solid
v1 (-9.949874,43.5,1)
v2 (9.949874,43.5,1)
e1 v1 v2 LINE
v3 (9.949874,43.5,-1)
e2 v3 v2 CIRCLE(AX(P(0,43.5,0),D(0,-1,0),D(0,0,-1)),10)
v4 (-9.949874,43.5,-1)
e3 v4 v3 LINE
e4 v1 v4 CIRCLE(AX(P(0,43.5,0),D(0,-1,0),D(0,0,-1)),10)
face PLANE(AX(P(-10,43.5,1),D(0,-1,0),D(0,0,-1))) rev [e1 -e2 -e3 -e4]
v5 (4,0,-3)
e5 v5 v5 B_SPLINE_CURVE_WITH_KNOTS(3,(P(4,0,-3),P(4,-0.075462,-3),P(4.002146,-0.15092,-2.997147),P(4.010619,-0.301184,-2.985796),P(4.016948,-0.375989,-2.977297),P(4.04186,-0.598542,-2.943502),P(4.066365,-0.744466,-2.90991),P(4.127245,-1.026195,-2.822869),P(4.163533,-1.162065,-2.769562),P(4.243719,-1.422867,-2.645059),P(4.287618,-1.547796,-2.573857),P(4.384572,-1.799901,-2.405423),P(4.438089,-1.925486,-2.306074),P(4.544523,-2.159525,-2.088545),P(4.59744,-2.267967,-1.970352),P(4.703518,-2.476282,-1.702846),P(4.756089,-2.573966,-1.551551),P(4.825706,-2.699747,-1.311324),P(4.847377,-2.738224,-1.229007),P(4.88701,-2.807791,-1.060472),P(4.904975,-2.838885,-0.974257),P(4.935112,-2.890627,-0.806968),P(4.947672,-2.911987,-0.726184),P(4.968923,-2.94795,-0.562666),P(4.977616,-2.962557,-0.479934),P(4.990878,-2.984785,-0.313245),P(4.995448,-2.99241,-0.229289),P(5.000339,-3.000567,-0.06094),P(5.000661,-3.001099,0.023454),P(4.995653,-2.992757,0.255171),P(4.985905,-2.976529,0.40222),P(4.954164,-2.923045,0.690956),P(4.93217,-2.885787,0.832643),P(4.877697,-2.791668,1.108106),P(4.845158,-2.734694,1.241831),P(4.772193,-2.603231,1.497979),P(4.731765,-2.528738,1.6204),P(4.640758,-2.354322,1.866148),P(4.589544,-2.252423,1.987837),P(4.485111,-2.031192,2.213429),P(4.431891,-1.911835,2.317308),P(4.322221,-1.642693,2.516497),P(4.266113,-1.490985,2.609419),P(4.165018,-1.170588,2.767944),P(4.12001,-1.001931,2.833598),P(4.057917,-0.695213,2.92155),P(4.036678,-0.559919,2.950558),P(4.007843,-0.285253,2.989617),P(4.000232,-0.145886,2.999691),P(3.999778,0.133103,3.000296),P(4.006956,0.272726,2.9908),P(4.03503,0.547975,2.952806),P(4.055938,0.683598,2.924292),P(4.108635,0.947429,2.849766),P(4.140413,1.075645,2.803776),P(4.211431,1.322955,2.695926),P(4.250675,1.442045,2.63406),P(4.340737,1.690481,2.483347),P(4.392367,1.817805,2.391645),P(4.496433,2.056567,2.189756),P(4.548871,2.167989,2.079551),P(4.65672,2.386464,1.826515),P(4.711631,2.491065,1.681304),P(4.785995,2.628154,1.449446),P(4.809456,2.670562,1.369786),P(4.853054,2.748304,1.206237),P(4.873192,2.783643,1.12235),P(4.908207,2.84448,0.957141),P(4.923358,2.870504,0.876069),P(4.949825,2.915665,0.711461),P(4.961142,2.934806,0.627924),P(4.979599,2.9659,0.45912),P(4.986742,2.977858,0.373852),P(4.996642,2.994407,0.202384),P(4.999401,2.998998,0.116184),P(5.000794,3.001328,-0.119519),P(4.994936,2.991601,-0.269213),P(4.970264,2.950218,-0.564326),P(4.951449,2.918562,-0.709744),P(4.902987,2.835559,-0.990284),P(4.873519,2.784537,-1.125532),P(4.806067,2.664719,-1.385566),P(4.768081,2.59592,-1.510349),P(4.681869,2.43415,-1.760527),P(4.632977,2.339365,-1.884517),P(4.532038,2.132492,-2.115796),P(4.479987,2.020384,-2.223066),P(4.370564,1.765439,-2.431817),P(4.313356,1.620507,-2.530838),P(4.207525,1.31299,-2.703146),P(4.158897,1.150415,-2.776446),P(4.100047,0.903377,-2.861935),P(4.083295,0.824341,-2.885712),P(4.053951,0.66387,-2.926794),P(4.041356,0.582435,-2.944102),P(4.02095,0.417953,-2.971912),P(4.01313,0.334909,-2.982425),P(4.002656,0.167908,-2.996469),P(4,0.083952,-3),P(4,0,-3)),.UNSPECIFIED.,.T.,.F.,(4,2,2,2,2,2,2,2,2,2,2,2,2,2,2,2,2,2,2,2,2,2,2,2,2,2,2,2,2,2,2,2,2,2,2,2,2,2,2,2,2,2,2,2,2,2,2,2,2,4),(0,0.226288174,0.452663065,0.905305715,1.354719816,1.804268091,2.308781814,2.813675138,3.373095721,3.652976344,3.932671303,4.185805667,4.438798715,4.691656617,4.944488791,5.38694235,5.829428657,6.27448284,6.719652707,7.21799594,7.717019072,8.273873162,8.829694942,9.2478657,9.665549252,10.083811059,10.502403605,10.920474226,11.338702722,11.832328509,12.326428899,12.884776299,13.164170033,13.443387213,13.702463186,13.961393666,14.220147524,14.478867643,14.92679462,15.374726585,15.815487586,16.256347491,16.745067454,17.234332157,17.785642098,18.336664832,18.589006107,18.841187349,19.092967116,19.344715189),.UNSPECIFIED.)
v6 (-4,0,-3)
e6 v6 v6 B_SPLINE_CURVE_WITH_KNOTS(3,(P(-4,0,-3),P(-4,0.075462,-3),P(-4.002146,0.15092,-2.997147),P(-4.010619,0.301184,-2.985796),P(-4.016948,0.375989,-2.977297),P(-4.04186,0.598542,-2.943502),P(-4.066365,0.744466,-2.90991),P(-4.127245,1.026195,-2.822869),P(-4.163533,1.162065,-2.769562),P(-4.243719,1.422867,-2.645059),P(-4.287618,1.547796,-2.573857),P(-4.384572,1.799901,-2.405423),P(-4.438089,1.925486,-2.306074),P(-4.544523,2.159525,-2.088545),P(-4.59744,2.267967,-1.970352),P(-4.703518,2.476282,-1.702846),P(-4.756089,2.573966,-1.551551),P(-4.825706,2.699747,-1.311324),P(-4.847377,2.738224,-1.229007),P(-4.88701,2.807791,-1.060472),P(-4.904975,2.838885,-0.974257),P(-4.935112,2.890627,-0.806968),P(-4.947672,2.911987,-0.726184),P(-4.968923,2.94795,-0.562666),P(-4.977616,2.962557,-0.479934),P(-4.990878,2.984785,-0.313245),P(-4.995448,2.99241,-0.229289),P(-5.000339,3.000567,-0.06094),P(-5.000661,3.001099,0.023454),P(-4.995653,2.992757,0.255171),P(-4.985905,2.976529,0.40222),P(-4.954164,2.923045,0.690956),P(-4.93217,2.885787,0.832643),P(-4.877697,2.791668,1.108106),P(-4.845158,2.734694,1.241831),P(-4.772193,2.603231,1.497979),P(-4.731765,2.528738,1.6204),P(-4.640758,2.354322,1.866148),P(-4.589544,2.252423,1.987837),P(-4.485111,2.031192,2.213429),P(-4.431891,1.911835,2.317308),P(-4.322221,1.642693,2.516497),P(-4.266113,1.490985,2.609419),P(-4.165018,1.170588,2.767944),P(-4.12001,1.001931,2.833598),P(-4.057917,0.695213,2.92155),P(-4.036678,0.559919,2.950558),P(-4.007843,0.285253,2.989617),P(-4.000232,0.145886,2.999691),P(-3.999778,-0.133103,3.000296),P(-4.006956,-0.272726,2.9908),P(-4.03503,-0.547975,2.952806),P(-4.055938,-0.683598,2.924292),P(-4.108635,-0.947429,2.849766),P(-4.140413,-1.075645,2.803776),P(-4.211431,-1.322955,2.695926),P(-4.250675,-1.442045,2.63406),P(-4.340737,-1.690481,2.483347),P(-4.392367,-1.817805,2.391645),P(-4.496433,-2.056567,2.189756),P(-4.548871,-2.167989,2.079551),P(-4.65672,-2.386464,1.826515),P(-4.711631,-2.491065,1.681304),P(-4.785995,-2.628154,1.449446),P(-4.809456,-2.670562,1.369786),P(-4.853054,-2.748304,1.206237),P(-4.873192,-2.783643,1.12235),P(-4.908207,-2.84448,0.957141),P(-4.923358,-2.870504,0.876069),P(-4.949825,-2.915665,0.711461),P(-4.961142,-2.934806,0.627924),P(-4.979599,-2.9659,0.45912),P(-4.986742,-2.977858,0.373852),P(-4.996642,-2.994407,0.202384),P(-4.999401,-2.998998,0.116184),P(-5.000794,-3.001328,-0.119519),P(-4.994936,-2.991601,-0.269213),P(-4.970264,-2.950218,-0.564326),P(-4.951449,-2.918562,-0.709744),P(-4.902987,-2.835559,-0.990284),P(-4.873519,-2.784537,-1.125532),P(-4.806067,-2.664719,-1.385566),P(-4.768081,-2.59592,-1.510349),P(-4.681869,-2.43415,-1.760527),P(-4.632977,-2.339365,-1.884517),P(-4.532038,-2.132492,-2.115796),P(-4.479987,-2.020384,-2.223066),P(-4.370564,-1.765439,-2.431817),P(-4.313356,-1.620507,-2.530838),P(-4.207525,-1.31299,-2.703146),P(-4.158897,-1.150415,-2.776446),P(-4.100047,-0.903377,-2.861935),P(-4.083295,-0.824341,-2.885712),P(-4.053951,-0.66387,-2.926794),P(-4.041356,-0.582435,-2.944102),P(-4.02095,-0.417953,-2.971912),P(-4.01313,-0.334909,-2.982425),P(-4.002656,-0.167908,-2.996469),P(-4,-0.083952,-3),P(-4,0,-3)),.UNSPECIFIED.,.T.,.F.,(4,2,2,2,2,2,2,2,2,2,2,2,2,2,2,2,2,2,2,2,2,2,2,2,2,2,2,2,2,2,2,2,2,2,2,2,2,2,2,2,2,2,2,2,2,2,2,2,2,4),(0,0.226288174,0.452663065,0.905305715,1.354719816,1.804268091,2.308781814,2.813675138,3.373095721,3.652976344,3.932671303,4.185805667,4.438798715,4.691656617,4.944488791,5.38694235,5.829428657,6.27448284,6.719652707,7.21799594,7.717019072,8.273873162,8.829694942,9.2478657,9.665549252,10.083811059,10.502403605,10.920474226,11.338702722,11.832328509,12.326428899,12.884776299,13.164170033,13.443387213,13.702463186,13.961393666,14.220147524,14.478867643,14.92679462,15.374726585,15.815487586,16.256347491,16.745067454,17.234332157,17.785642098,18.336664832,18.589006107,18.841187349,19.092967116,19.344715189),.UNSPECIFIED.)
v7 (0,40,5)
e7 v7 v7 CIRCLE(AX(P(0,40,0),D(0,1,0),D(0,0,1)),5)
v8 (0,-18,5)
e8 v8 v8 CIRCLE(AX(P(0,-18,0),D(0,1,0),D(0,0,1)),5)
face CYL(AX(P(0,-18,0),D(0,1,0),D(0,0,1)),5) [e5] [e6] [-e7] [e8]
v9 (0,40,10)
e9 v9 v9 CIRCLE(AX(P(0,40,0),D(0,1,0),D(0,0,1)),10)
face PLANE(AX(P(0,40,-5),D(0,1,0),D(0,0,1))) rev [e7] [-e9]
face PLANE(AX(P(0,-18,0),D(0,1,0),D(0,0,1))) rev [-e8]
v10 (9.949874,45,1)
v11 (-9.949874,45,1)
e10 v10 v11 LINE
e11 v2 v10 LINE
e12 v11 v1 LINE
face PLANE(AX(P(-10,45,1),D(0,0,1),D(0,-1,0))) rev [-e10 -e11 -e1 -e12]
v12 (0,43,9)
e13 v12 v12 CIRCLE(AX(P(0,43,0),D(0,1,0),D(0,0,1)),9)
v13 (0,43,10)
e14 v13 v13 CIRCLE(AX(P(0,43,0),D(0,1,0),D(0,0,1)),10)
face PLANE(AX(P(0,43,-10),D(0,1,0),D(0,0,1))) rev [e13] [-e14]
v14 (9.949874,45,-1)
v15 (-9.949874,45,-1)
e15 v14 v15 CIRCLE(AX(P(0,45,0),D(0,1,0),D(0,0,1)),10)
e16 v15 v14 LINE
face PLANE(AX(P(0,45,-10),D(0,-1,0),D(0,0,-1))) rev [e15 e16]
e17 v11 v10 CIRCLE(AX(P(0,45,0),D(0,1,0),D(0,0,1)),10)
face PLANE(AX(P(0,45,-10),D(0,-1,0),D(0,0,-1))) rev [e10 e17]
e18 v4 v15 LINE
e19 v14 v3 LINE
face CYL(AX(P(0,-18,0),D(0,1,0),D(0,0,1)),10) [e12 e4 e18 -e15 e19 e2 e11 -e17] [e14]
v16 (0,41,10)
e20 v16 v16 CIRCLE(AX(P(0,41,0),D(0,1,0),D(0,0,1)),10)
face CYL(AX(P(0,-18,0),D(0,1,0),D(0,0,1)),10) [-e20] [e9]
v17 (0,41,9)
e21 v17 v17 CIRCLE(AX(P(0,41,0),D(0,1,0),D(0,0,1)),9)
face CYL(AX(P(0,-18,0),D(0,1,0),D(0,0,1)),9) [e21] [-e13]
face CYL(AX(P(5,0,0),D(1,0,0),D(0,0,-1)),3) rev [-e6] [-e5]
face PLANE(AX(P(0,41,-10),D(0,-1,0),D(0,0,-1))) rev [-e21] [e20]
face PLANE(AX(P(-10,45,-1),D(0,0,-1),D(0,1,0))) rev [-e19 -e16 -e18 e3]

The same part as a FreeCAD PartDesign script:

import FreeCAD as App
import Part
import Sketcher

V = App.Vector
Q = App.Units.Quantity


def add_polygon(sketch, points):
    """Adds a closed chain of lines whose ends are joined by coincident constraints."""
    first, n = sketch.GeometryCount, len(points)
    for a, b in zip(points, points[1:] + points[:1]):
        sketch.addGeometry(Part.LineSegment(App.Vector(*a, 0), App.Vector(*b, 0)), False)
    for i in range(n):
        sketch.addConstraint(Sketcher.Constraint("Coincident", first + i, 2, first + (i + 1) % n, 1))

doc = App.newDocument("Part")
body = doc.addObject("PartDesign::Body", "Body")

# Sketch on YZ plane
sketch1 = doc.addObject("Sketcher::SketchObject", "Sketch")
body.addObject(sketch1)
sketch1.AttachmentSupport = (doc.YZ_Plane, [""])
sketch1.MapMode = "FlatFace"
add_polygon(sketch1, [(43, -10), (45, -10), (45, 0), (-18, 0), (-18, -5), (40, -5), (40, -10), (41, -10), (41, -9), (43, -9)])  # lines 0-9
sketch1.addConstraint([
    Sketcher.Constraint("Horizontal", 0),
    Sketcher.Constraint("Vertical", 1),
    Sketcher.Constraint("Horizontal", 2),
    Sketcher.Constraint("Vertical", 3),
    Sketcher.Constraint("Horizontal", 4),
    Sketcher.Constraint("Vertical", 5),
    Sketcher.Constraint("Horizontal", 6),
    Sketcher.Constraint("Vertical", 7),
    Sketcher.Constraint("Horizontal", 8),
    Sketcher.Constraint("Vertical", 9),
    Sketcher.Constraint("PointOnObject", 1, 2, -1),
    Sketcher.Constraint("Horizontal", 0, 2, 5, 2),
    Sketcher.Constraint("Equal", 0, 8),
    Sketcher.Constraint("Equal", 3, 5),
    Sketcher.Constraint("Equal", 6, 7),
    Sketcher.Constraint("DistanceX", 0, 1, 0, 2, Q("2 mm")),
    Sketcher.Constraint("DistanceX", 2, 2, 2, 1, Q("63 mm")),
    Sketcher.Constraint("DistanceX", 4, 1, 4, 2, Q("58 mm")),
    Sketcher.Constraint("DistanceY", 1, 1, 1, 2, Q("10 mm")),
    Sketcher.Constraint("DistanceX", -1, 1, 0, 2, Q("45 mm")),
])
revolution = doc.addObject("PartDesign::Revolution", "Revolution")
body.addObject(revolution)
revolution.Profile = sketch1
revolution.ReferenceAxis = (sketch1, ["H_Axis"])
revolution.Angle = 360

# Sketch on YZ plane
sketch2 = doc.addObject("Sketcher::SketchObject", "Sketch001")
body.addObject(sketch2)
sketch2.AttachmentSupport = (doc.YZ_Plane, [""])
sketch2.MapMode = "FlatFace"
add_polygon(sketch2, [(45, 1), (43.5, 1), (43.5, -1), (45, -1)])  # lines 0-3
sketch2.addConstraint([
    Sketcher.Constraint("Horizontal", 0),
    Sketcher.Constraint("Vertical", 1),
    Sketcher.Constraint("Horizontal", 2),
    Sketcher.Constraint("Vertical", 3),
    Sketcher.Constraint("DistanceY", 1, 2, 1, 1, Q("2 mm")),
    Sketcher.Constraint("DistanceX", 0, 2, 0, 1, Q("1.5 mm")),
    Sketcher.Constraint("DistanceY", -1, 1, 0, 2, Q("1 mm")),
    Sketcher.Constraint("DistanceX", -1, 1, 2, 2, Q("45 mm")),
])
pocket1 = doc.addObject("PartDesign::Pocket", "Pocket")
body.addObject(pocket1)
pocket1.Profile = sketch2
pocket1.Type = "ThroughAll"
pocket1.Midplane = True

# Sketch on YZ plane
sketch3 = doc.addObject("Sketcher::SketchObject", "Sketch002")
body.addObject(sketch3)
sketch3.AttachmentSupport = (doc.YZ_Plane, [""])
sketch3.MapMode = "FlatFace"
sketch3.AttachmentOffset = App.Placement(V(0, 0, 5), App.Rotation())
sketch3.addGeometry(Part.Circle(V(0, 0, 0), V(0, 0, 1), 3), False)
sketch3.addConstraint([
    Sketcher.Constraint("Coincident", 0, 3, -1, 1),
    Sketcher.Constraint("Diameter", 0, Q("6 mm")),
])
doc.recompute()
hole = doc.addObject("PartDesign::Hole", "Hole")
body.addObject(hole)
hole.Profile = sketch3
hole.ThreadType = "None"
hole.Diameter = 6
hole.DepthType = "ThroughAll"

doc.recompute()
